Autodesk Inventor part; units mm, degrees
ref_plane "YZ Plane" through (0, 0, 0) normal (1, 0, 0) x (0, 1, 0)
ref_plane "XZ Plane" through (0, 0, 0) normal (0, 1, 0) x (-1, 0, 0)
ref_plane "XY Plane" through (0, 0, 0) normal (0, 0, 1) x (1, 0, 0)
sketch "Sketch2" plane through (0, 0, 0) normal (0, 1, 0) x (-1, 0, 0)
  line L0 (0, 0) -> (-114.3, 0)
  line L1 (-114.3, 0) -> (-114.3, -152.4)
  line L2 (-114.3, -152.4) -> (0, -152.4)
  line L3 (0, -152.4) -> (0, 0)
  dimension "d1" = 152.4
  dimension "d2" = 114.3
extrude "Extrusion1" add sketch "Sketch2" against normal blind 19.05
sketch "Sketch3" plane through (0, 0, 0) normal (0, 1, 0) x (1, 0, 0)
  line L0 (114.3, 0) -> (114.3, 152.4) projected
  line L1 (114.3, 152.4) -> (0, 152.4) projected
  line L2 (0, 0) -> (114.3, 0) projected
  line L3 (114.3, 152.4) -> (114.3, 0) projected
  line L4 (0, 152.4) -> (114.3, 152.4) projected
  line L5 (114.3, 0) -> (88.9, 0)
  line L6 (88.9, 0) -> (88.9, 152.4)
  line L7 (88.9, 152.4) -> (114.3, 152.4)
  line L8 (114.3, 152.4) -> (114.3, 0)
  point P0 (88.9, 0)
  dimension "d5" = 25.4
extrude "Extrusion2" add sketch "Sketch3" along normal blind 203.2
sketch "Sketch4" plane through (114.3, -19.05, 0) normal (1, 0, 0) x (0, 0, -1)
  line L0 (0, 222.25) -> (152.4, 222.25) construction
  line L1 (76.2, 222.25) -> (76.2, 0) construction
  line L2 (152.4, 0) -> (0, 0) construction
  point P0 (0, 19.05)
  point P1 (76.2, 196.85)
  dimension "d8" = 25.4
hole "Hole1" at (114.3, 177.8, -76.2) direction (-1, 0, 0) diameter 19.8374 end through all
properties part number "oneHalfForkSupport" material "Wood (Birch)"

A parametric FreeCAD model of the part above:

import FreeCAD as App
import Part
import Sketcher
Q = App.Units.Quantity

doc = App.newDocument("Part")
params = doc.addObject("Spreadsheet::Sheet", "Params")
for row, (alias, value) in enumerate([
    ("sketch1_height", "6 in"),
    ("sketch1_width", "4.5 in"),
    ("pad1_length", "0.75 in"),
    ("sketch2_width", "1 in"),
    ("sketch2_height", "6 in"),
    ("pad2_length", "8 in"),
    ("sketch3_diameter", "0.781 in"),
    ("hole_diameter", "0.781 in"),
], start=1):
    params.set(f"A{row}", alias)
    params.set(f"B{row}", "=" + value)
    params.setAlias(f"B{row}", alias)

body = doc.addObject("PartDesign::Body", "Body")

sketch1 = body.newObject("Sketcher::SketchObject", "Sketch")
sketch1.AttachmentSupport = (doc.getObject("XZ_Plane"), [""])
sketch1.MapMode = "FlatFace"
sketch1.addGeometry([
    Part.LineSegment(App.Vector(0, -152, 0), App.Vector(0, 0, 0)),
    Part.LineSegment(App.Vector(0, 0, 0), App.Vector(114, 0, 0)),
    Part.LineSegment(App.Vector(114, 0, 0), App.Vector(114, -152, 0)),
    Part.LineSegment(App.Vector(114, -152, 0), App.Vector(0, -152, 0)),
], False)
sketch1.addConstraint([
    Sketcher.Constraint("Coincident", 0, 2, 1, 1),
    Sketcher.Constraint("Coincident", 1, 2, 2, 1),
    Sketcher.Constraint("Coincident", 2, 2, 3, 1),
    Sketcher.Constraint("Coincident", 3, 2, 0, 1),
    Sketcher.Constraint("Vertical", 0),
    Sketcher.Constraint("Horizontal", 1),
    Sketcher.Constraint("Vertical", 2),
    Sketcher.Constraint("Horizontal", 3),
    Sketcher.Constraint("Coincident", 0, 2, -1, 1),
    Sketcher.Constraint("DistanceY", 0, 1, 0, 2, Q("6 in")),
    Sketcher.Constraint("DistanceX", 1, 1, 1, 2, Q("4.5 in")),
])
sketch1.setExpression("Constraints[9]", "Params.sketch1_height")
sketch1.setExpression("Constraints[10]", "Params.sketch1_width")
pad1 = body.newObject("PartDesign::Pad", "Pad")
pad1.Profile = sketch1
pad1.setExpression("Length", "Params.pad1_length")

sketch2 = body.newObject("Sketcher::SketchObject", "Sketch001")
sketch2.AttachmentSupport = (doc.getObject("XZ_Plane"), [""])
sketch2.MapMode = "FlatFace"
sketch2.addGeometry([
    Part.LineSegment(App.Vector(89, 0, 0), App.Vector(114, 0, 0)),
    Part.LineSegment(App.Vector(114, 0, 0), App.Vector(114, -152, 0)),
    Part.LineSegment(App.Vector(114, -152, 0), App.Vector(89, -152, 0)),
    Part.LineSegment(App.Vector(89, -152, 0), App.Vector(89, 0, 0)),
], False)
sketch2.addConstraint([
    Sketcher.Constraint("Coincident", 0, 2, 1, 1),
    Sketcher.Constraint("Coincident", 1, 2, 2, 1),
    Sketcher.Constraint("Coincident", 2, 2, 3, 1),
    Sketcher.Constraint("Coincident", 3, 2, 0, 1),
    Sketcher.Constraint("Horizontal", 0),
    Sketcher.Constraint("Vertical", 1),
    Sketcher.Constraint("Horizontal", 2),
    Sketcher.Constraint("Vertical", 3),
    Sketcher.Constraint("PointOnObject", 0, 2, -1),
    Sketcher.Constraint("DistanceX", 0, 1, 0, 2, Q("1 in")),
    Sketcher.Constraint("DistanceY", 1, 2, 1, 1, Q("6 in")),
    Sketcher.Constraint("DistanceX", -1, 1, 0, 2, Q("4.5 in")),
])
sketch2.setExpression("Constraints[9]", "Params.sketch2_width")
sketch2.setExpression("Constraints[10]", "Params.sketch2_height")
pad2 = body.newObject("PartDesign::Pad", "Pad001")
pad2.Profile = sketch2
pad2.setExpression("Length", "Params.pad2_length")
pad2.Reversed = True

sketch3 = body.newObject("Sketcher::SketchObject", "Sketch002")
sketch3.AttachmentSupport = (doc.getObject("YZ_Plane"), [""])
sketch3.MapMode = "FlatFace"
sketch3.AttachmentOffset = App.Placement(App.Vector(0, 0, 4.5 * 25.4), App.Rotation())
sketch3.addGeometry(Part.Circle(App.Vector(178, -76, 0), App.Vector(0, 0, 1), 10), False)
sketch3.addConstraint([
    Sketcher.Constraint("Diameter", 0, Q("0.781 in")),
    Sketcher.Constraint("DistanceX", -1, 1, 0, 3, Q("7 in")),
    Sketcher.Constraint("DistanceY", 0, 3, -1, 1, Q("3 in")),
])
sketch3.setExpression("Constraints[0]", "Params.sketch3_diameter")
doc.recompute()
hole = body.newObject("PartDesign::Hole", "Hole")
hole.Profile = sketch3
hole.ThreadType = "None"
hole.setExpression("Diameter", "Params.hole_diameter")
hole.DepthType = "ThroughAll"

doc.recompute()
